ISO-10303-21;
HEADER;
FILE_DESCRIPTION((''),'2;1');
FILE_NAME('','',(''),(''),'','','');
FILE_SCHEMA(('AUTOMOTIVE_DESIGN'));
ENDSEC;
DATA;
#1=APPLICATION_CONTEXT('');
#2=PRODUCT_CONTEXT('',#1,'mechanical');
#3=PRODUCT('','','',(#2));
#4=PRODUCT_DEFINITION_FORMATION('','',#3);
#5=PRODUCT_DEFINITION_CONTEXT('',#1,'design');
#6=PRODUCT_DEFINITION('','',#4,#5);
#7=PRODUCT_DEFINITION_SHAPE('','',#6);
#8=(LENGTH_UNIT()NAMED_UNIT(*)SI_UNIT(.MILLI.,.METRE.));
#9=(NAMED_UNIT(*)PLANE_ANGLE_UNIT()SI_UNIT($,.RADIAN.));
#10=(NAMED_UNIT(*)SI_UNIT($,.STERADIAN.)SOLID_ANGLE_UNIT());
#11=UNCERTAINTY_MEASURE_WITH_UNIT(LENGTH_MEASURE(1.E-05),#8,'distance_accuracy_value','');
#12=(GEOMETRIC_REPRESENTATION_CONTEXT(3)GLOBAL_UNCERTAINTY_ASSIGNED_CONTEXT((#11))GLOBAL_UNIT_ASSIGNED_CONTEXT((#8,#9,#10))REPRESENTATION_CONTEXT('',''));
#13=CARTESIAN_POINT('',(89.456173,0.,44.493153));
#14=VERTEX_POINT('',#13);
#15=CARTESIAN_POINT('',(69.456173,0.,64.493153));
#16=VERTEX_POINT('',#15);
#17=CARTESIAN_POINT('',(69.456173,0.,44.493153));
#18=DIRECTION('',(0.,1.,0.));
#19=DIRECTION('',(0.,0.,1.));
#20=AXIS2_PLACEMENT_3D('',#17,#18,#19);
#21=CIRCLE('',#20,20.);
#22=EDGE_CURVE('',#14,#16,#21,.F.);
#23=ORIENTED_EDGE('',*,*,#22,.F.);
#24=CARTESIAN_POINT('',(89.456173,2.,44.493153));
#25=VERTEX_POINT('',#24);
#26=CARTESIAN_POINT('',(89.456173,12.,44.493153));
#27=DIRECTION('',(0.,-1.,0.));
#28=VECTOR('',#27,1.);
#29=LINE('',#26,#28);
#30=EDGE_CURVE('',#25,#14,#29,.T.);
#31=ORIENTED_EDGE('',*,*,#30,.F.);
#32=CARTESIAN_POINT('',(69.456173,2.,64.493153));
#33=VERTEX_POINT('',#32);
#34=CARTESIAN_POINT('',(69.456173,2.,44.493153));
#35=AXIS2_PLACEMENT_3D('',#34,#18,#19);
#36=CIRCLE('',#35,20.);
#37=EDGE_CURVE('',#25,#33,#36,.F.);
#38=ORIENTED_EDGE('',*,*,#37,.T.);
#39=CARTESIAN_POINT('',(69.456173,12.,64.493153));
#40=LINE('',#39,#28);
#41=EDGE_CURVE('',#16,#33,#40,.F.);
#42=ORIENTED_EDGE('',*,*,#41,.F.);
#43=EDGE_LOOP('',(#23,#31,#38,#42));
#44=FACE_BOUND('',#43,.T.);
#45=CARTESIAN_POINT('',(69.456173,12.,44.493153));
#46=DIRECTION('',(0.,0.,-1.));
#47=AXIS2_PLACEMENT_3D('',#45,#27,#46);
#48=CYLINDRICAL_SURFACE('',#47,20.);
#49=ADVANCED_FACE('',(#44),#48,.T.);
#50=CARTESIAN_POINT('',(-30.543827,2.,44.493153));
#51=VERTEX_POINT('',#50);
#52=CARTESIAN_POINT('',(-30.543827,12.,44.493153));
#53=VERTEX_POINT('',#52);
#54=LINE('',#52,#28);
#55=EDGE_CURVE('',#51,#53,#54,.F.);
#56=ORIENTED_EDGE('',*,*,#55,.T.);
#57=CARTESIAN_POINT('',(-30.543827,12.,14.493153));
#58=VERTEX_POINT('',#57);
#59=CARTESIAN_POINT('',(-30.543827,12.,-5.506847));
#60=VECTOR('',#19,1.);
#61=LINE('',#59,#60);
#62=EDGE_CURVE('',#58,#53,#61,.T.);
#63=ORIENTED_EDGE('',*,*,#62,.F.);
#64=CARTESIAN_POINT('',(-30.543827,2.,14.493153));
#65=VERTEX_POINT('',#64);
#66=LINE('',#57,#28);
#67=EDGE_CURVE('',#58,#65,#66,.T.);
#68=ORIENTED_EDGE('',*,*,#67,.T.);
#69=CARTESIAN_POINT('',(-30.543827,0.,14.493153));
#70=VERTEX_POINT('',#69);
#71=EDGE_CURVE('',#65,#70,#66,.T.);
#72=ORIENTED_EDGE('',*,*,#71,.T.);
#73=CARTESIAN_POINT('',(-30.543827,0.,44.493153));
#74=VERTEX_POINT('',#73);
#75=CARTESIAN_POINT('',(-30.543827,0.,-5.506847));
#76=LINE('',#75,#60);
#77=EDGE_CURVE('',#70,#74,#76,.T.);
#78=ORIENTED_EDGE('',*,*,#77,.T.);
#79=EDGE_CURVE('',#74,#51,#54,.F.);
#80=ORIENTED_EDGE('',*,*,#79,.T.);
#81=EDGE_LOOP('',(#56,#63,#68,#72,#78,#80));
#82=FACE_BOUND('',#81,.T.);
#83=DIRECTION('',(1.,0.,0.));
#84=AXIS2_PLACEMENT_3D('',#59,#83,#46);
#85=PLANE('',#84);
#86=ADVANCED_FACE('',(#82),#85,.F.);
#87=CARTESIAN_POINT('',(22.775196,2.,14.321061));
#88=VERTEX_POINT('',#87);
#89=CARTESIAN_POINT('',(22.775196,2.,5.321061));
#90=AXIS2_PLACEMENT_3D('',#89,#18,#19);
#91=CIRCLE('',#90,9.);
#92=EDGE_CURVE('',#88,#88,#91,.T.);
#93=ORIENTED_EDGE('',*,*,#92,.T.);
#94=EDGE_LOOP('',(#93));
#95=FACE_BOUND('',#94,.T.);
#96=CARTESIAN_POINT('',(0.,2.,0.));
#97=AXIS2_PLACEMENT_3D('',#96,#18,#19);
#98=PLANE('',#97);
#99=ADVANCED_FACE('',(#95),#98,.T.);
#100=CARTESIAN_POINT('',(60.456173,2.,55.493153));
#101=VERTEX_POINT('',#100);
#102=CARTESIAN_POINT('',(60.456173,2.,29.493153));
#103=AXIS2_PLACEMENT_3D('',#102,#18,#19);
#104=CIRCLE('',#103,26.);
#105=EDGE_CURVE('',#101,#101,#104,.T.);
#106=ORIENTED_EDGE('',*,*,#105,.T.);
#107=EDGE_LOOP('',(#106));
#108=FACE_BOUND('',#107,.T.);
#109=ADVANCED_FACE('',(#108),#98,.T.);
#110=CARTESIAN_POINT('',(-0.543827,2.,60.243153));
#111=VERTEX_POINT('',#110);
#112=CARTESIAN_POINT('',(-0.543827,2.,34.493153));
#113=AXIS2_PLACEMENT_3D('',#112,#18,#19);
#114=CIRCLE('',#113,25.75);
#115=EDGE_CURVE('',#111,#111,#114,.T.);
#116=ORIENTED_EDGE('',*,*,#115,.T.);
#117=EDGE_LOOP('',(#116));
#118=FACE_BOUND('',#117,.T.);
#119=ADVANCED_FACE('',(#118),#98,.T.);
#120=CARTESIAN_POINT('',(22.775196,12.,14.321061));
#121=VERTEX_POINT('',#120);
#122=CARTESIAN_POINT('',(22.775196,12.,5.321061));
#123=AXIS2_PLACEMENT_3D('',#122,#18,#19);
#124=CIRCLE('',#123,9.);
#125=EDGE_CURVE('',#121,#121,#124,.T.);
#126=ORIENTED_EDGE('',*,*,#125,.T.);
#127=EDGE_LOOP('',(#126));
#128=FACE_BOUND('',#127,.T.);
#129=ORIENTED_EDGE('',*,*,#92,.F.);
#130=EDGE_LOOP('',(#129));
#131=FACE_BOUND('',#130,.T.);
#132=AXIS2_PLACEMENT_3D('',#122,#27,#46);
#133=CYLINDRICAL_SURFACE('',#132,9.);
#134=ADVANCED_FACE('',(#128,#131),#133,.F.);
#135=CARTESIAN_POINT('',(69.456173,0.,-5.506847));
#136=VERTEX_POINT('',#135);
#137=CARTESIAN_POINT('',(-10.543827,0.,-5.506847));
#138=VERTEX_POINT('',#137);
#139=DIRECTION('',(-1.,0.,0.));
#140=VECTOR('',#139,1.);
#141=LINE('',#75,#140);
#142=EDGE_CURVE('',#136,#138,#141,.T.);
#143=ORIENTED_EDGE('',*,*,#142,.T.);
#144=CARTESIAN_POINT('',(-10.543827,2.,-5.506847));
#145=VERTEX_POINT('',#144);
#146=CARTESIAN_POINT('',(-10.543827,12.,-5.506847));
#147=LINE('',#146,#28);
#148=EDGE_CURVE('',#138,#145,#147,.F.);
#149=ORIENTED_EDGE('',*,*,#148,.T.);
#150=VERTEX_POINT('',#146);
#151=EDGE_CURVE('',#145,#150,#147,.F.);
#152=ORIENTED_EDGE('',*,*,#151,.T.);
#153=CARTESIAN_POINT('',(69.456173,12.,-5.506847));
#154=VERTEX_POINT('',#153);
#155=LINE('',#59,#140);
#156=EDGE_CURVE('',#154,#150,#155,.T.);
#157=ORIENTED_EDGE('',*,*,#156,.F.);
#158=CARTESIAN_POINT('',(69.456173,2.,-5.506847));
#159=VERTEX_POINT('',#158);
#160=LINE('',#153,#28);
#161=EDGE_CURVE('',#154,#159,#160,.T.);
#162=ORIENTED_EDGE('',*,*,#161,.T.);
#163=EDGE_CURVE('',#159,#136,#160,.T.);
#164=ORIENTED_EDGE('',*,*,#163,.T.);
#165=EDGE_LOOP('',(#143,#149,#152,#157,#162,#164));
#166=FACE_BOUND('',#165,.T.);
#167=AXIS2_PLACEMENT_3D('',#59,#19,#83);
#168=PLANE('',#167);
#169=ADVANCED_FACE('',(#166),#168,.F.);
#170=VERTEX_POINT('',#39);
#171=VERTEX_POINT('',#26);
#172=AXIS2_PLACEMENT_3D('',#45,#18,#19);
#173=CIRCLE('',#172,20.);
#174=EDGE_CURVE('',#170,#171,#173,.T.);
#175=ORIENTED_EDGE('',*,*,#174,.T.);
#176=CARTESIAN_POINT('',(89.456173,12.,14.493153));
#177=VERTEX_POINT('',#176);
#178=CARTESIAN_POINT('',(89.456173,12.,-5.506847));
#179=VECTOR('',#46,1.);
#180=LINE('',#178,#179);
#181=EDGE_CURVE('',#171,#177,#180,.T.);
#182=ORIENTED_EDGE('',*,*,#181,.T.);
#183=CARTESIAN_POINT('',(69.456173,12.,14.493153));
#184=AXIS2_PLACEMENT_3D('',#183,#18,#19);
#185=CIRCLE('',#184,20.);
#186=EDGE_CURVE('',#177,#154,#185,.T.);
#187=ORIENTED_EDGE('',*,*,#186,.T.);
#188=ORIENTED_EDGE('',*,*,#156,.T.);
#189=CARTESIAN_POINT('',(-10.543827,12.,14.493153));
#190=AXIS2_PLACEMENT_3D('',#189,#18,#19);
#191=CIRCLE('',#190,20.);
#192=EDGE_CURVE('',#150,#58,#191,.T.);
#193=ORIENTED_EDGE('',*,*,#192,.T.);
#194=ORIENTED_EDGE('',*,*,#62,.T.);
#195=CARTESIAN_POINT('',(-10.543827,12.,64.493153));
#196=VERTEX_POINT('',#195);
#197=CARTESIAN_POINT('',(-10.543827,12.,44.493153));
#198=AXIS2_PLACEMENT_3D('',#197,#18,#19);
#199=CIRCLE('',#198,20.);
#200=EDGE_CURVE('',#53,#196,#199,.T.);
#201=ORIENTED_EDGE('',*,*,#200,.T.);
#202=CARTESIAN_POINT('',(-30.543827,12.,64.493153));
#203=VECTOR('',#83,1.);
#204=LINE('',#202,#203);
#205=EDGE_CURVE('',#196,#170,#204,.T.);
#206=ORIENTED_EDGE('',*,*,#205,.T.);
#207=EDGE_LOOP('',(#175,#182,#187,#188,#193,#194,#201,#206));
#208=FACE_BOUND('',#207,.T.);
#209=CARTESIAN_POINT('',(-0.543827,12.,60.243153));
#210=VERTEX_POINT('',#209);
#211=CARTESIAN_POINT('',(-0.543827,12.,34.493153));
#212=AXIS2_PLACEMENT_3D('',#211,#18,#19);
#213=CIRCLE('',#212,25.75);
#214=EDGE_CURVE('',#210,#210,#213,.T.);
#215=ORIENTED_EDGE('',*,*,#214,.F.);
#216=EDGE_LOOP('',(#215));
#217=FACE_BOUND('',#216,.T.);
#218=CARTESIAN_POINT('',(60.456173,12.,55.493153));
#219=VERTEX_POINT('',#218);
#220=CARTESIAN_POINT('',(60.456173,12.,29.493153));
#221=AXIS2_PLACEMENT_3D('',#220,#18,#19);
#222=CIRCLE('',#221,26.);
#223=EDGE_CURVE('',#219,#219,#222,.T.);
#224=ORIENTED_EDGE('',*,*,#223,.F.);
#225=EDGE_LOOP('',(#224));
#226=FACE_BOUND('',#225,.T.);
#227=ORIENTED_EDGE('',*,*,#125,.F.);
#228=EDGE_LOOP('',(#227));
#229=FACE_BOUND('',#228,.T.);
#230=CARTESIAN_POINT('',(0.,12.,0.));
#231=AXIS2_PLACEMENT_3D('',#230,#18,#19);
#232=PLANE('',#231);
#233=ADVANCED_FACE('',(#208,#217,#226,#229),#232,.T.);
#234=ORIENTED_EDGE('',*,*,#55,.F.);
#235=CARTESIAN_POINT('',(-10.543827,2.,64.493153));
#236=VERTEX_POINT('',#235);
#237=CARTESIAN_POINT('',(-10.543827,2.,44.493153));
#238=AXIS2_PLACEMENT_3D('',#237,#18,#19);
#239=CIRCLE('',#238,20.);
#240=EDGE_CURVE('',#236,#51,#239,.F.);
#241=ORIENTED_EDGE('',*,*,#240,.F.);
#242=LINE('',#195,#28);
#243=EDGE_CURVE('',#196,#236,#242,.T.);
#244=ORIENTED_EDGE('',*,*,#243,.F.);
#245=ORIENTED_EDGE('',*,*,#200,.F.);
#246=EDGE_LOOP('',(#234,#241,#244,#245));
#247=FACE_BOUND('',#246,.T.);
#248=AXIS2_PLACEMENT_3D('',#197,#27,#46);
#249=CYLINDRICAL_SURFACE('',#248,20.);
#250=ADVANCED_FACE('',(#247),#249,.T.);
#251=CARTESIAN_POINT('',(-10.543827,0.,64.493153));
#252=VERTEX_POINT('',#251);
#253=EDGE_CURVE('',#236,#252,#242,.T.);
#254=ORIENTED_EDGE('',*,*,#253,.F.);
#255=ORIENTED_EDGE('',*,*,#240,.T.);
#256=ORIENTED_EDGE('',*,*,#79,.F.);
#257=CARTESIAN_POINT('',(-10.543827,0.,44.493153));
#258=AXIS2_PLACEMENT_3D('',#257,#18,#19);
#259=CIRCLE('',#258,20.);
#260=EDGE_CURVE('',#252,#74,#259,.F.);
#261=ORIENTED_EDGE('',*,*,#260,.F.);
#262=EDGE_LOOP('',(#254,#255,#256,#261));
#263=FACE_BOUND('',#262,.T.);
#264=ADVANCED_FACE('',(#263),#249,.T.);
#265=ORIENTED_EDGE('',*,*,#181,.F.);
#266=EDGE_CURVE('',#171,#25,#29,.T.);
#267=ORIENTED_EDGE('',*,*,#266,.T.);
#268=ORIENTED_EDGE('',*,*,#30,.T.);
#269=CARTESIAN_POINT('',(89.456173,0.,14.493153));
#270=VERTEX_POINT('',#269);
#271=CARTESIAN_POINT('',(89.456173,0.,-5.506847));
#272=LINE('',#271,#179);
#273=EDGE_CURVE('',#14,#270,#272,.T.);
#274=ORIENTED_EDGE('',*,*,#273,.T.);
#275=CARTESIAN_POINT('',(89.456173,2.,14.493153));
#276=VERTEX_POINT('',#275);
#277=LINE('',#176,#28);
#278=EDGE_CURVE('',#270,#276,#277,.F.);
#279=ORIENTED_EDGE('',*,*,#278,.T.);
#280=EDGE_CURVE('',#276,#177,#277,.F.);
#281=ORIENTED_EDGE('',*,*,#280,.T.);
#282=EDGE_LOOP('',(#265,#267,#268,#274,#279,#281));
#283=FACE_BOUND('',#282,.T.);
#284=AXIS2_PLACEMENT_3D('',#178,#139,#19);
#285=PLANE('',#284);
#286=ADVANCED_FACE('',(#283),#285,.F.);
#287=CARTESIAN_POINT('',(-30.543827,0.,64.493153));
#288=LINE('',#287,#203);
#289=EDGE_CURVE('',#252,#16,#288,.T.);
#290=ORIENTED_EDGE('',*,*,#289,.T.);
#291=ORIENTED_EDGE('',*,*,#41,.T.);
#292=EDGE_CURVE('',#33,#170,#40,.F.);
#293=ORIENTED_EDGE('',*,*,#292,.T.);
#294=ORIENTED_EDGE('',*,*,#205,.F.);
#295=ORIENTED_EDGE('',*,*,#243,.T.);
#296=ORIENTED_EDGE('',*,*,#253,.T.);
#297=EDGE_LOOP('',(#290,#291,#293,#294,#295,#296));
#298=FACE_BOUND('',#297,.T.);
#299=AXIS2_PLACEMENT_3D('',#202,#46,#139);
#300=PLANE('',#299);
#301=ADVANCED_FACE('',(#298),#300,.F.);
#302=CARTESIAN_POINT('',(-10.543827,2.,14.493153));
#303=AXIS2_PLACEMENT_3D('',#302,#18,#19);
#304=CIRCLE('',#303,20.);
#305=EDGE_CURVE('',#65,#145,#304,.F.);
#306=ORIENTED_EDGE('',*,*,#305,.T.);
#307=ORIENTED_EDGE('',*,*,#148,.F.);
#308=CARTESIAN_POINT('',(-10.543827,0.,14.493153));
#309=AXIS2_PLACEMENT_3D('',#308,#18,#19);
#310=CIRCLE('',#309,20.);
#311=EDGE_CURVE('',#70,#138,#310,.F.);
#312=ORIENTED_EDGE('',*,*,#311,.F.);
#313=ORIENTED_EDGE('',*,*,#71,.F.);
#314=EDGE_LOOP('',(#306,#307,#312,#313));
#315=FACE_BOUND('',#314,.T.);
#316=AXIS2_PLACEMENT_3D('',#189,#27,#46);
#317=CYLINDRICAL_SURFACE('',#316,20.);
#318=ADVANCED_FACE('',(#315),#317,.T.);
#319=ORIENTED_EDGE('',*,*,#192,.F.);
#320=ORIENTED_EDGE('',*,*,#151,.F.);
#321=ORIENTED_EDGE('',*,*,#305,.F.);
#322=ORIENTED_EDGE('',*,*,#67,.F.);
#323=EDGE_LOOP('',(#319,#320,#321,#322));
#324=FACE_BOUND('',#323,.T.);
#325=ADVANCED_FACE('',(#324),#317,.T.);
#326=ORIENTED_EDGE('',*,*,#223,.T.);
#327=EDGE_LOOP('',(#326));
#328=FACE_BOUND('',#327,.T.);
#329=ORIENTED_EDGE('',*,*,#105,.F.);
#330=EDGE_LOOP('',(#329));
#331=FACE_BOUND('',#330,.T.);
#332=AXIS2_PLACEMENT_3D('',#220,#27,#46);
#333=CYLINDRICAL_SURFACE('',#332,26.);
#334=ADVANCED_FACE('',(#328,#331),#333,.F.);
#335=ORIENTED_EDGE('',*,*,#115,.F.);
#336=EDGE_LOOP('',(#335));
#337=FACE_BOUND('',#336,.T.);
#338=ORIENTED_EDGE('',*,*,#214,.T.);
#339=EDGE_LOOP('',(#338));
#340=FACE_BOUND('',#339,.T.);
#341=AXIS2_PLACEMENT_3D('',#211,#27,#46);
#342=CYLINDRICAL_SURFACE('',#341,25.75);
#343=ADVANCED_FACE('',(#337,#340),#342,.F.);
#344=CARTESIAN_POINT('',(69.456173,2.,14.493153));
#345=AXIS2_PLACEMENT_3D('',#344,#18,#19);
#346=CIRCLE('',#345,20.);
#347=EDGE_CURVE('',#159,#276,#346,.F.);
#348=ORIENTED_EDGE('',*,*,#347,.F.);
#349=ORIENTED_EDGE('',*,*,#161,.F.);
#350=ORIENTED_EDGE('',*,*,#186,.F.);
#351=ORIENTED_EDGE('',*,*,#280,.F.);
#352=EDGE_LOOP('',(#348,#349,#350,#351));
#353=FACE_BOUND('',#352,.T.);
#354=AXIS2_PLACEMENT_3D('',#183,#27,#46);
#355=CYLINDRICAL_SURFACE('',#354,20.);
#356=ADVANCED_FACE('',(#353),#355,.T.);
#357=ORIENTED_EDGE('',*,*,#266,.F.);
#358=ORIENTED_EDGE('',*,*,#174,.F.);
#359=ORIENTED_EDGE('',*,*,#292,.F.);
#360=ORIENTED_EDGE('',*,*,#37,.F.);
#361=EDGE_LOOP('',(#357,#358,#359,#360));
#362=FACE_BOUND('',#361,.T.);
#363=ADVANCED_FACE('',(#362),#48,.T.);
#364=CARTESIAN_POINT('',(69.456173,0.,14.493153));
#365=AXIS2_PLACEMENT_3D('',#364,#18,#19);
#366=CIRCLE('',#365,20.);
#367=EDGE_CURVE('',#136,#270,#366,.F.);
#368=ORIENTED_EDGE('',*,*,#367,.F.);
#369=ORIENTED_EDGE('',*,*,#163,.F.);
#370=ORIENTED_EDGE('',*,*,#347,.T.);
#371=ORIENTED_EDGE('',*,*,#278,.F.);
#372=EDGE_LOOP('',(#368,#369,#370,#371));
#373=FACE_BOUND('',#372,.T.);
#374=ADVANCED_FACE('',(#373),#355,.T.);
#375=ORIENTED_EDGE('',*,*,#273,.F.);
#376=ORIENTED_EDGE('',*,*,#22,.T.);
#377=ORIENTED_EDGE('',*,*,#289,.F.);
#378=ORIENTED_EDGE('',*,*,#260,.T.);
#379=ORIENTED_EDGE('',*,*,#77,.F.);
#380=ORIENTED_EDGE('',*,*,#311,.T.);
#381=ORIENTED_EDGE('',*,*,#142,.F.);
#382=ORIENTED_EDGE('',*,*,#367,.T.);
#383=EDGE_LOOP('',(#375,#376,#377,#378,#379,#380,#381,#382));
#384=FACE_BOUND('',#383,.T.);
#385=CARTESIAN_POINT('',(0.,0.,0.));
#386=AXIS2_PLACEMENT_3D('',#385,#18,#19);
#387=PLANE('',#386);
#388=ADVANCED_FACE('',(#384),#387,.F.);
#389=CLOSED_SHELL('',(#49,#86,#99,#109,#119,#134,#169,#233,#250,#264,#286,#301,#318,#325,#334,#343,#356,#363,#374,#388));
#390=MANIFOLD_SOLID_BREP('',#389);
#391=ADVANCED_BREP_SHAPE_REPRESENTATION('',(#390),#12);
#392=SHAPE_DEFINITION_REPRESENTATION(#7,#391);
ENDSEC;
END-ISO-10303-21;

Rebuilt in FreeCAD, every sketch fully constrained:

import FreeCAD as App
import Part
import Sketcher
from FreeCAD import Vector
Q = App.Units.Quantity


def edges_at(feature, points):
    """Names of the edges that pass closest to the given points."""
    edges = feature.Shape.Edges
    near = lambda p: min(range(len(edges)), key=lambda i: edges[i].distToShape(Part.Vertex(*p))[0])
    return sorted({f"Edge{near(p) + 1}" for p in points})


def add_polygon(sketch, points):
    """Adds a closed chain of lines whose ends are joined by coincident constraints."""
    first, n = sketch.GeometryCount, len(points)
    for a, b in zip(points, points[1:] + points[:1]):
        sketch.addGeometry(Part.LineSegment(App.Vector(*a, 0), App.Vector(*b, 0)), False)
    for i in range(n):
        sketch.addConstraint(Sketcher.Constraint("Coincident", first + i, 2, first + (i + 1) % n, 1))

doc = App.newDocument("Part")
params = doc.addObject("Spreadsheet::Sheet", "Params")
for row, (alias, value) in enumerate([
    ("sketch1_diameter", "52 mm"),
    ("sketch1_diameter2", "18 mm"),
    ("sketch1_diameter3", "51.5 mm"),
    ("sketch1_width", "120 mm"),
    ("sketch1_height", "70 mm"),
    ("pad1_length", "12 mm"),
    ("fillet_radius", "20 mm"),
    ("sketch2_width", "120 mm"),
    ("sketch2_height", "70 mm"),
    ("pad2_length", "2 mm"),
    ("fillet2_radius", "20 mm"),
], start=1):
    params.set(f"A{row}", alias)
    params.set(f"B{row}", "=" + value)
    params.setAlias(f"B{row}", alias)

body = doc.addObject("PartDesign::Body", "Body")

sketch1 = body.newObject("Sketcher::SketchObject", "Sketch")
sketch1.AttachmentSupport = (doc.getObject("XZ_Plane"), [""])
sketch1.MapMode = "FlatFace"
add_polygon(sketch1, [(-30.543827, -5.506847), (-30.543827, 64.493153), (89.456173, 64.493153), (89.456173, -5.506847)])
sketch1.addGeometry(Part.Circle(Vector(-0.543827, 34.493153, 0), Vector(0, 0, 1), 25.75), False)
sketch1.addGeometry(Part.Circle(Vector(60.456173, 29.493153, 0), Vector(0, 0, 1), 26), False)
sketch1.addGeometry(Part.Circle(Vector(22.775196, 5.321061, 0), Vector(0, 0, 1), 9), False)
sketch1.addConstraint([
    Sketcher.Constraint("Vertical", 0),
    Sketcher.Constraint("Horizontal", 1),
    Sketcher.Constraint("Vertical", 2),
    Sketcher.Constraint("Horizontal", 3),
    Sketcher.Constraint("Diameter", 5, Q("52 mm")),
    Sketcher.Constraint("Diameter", 6, Q("18 mm")),
    Sketcher.Constraint("Diameter", 4, Q("51.5 mm")),
    Sketcher.Constraint("DistanceX", 1, 1, 1, 2, Q("120 mm")),
    Sketcher.Constraint("DistanceY", 0, 1, 0, 2, Q("70 mm")),
    Sketcher.Constraint("DistanceX", 4, 3, 5, 3, Q("61 mm")),
    Sketcher.Constraint("DistanceY", 5, 3, 4, 3, Q("5 mm")),
    Sketcher.Constraint("DistanceX", 0, 2, 4, 3, Q("30 mm")),
    Sketcher.Constraint("DistanceY", 4, 3, 0, 2, Q("30 mm")),
    Sketcher.Constraint("DistanceY", -1, 1, 6, 3, Q("5.321061 mm")),
    Sketcher.Constraint("DistanceX", 4, 3, -1, 1, Q("0.543827 mm")),
    Sketcher.Constraint("DistanceY", -1, 1, 4, 3, Q("34.493153 mm")),
    Sketcher.Constraint("DistanceX", -1, 1, 6, 3, Q("22.775196 mm")),
])
sketch1.setExpression("Constraints[8]", "Params.sketch1_diameter")
sketch1.setExpression("Constraints[9]", "Params.sketch1_diameter2")
sketch1.setExpression("Constraints[10]", "Params.sketch1_diameter3")
sketch1.setExpression("Constraints[11]", "Params.sketch1_width")
sketch1.setExpression("Constraints[12]", "Params.sketch1_height")
pad1 = body.newObject("PartDesign::Pad", "Pad")
pad1.Profile = sketch1
pad1.setExpression("Length", "Params.pad1_length")
pad1.Reversed = True
doc.recompute()

fillet = body.newObject("PartDesign::Fillet", "Fillet")
fillet.Base = (pad1, edges_at(pad1, [
    (-30.544, 6, -5.507),
    (89.456, 6, -5.507),
    (89.456, 6, 64.493),
    (-30.544, 6, 64.493),
]))
fillet.setExpression("Radius", "Params.fillet_radius")

sketch2 = body.newObject("Sketcher::SketchObject", "Sketch001")
sketch2.AttachmentSupport = (doc.getObject("XZ_Plane"), [""])
sketch2.MapMode = "FlatFace"
add_polygon(sketch2, [(-30.543827, -5.506847), (-30.543827, 64.493153), (89.456173, 64.493153), (89.456173, -5.506847)])
sketch2.addConstraint([
    Sketcher.Constraint("Vertical", 0),
    Sketcher.Constraint("Horizontal", 1),
    Sketcher.Constraint("Vertical", 2),
    Sketcher.Constraint("Horizontal", 3),
    Sketcher.Constraint("DistanceX", 1, 1, 1, 2, Q("120 mm")),
    Sketcher.Constraint("DistanceY", 0, 1, 0, 2, Q("70 mm")),
    Sketcher.Constraint("DistanceX", 0, 2, -1, 1, Q("30.543827 mm")),
    Sketcher.Constraint("DistanceY", -1, 1, 0, 2, Q("64.493153 mm")),
])
sketch2.setExpression("Constraints[8]", "Params.sketch2_width")
sketch2.setExpression("Constraints[9]", "Params.sketch2_height")
pad2 = body.newObject("PartDesign::Pad", "Pad001")
pad2.Profile = sketch2
pad2.setExpression("Length", "Params.pad2_length")
pad2.Reversed = True
doc.recompute()

fillet2 = body.newObject("PartDesign::Fillet", "Fillet001")
fillet2.Base = (pad2, edges_at(pad2, [
    (89.456, 1, -5.507),
    (89.456, 1, 64.493),
    (-30.544, 1, 64.493),
    (-30.544, 1, -5.507),
]))
fillet2.setExpression("Radius", "Params.fillet2_radius")

doc.recompute()
